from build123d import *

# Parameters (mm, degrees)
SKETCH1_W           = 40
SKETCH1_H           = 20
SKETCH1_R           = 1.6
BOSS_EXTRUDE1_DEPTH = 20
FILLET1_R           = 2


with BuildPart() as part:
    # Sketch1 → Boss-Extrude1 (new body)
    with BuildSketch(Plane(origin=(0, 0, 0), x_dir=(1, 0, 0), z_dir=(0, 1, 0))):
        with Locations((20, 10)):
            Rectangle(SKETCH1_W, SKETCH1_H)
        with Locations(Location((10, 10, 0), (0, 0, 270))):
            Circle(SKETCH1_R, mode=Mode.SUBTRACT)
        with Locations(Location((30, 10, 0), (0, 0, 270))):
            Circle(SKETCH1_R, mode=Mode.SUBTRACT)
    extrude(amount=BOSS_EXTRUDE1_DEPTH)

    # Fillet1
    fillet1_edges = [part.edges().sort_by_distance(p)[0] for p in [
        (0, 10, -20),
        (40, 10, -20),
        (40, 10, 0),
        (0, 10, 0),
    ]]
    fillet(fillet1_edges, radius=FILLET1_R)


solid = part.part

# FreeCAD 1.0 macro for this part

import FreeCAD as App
import Part
import Sketcher

V = App.Vector
Q = App.Units.Quantity


def edges_at(feature, points):
    """Names of the edges that pass closest to the given points."""
    edges = feature.Shape.Edges
    near = lambda p: min(range(len(edges)), key=lambda i: edges[i].distToShape(Part.Vertex(*p))[0])
    return sorted({f"Edge{near(p) + 1}" for p in points})


def add_polygon(sketch, points):
    """Adds a closed chain of lines whose ends are joined by coincident constraints."""
    first, n = sketch.GeometryCount, len(points)
    for a, b in zip(points, points[1:] + points[:1]):
        sketch.addGeometry(Part.LineSegment(App.Vector(*a, 0), App.Vector(*b, 0)), False)
    for i in range(n):
        sketch.addConstraint(Sketcher.Constraint("Coincident", first + i, 2, first + (i + 1) % n, 1))

doc = App.newDocument("Part")
body = doc.addObject("PartDesign::Body", "Body")

# Sketch on XZ plane
sketch1 = body.newObject("Sketcher::SketchObject", "Sketch")
sketch1.AttachmentSupport = (doc.getObject("XZ_Plane"), [""])
sketch1.MapMode = "FlatFace"
add_polygon(sketch1, [(0, -20), (0, 0), (40, 0), (40, -20)])  # lines 0-3
sketch1.addGeometry(Part.Circle(V(10, -10, 0), V(0, 0, 1), 1.6), False)  # 4
sketch1.addGeometry(Part.Circle(V(30, -10, 0), V(0, 0, 1), 1.6), False)  # 5
sketch1.addConstraint([
    Sketcher.Constraint("Vertical", 0),
    Sketcher.Constraint("Horizontal", 1),
    Sketcher.Constraint("Vertical", 2),
    Sketcher.Constraint("Horizontal", 3),
    Sketcher.Constraint("Coincident", 0, 2, -1, 1),
    Sketcher.Constraint("Equal", 4, 5),
    Sketcher.Constraint("Horizontal", 4, 3, 5, 3),
    Sketcher.Constraint("Diameter", 4, Q("3.2 mm")),
    Sketcher.Constraint("DistanceX", 1, 1, 1, 2, Q("40 mm")),
    Sketcher.Constraint("DistanceY", 0, 1, 0, 2, Q("20 mm")),
    Sketcher.Constraint("DistanceX", -1, 1, 4, 3, Q("10 mm")),
    Sketcher.Constraint("DistanceY", 4, 3, -1, 1, Q("10 mm")),
    Sketcher.Constraint("DistanceX", -1, 1, 5, 3, Q("30 mm")),
])
pad1 = body.newObject("PartDesign::Pad", "Pad")
pad1.Profile = sketch1
pad1.Length = 20
pad1.Reversed = True
doc.recompute()

fillet = body.newObject("PartDesign::Fillet", "Fillet")
fillet.Base = (pad1, edges_at(pad1, [
    (0, 10, -20),
    (40, 10, -20),
    (40, 10, 0),
    (0, 10, 0),
]))
fillet.Radius = 2

doc.recompute()
